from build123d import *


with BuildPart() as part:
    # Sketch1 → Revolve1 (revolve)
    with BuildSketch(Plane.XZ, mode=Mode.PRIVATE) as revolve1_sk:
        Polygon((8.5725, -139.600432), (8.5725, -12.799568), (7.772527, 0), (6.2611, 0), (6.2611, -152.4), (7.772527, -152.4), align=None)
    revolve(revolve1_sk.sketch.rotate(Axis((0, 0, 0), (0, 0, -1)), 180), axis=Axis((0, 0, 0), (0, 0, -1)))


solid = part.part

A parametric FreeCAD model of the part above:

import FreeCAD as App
import Part
import Sketcher
from FreeCAD import Vector
Q = App.Units.Quantity

doc = App.newDocument("Part")
body = doc.addObject("PartDesign::Body", "Body")

# Sketch on XZ plane
sketch1 = body.newObject("Sketcher::SketchObject", "Sketch")
sketch1.AttachmentSupport = (doc.getObject("XZ_Plane"), [""])
sketch1.MapMode = "FlatFace"
sketch1.addGeometry([
    Part.LineSegment(Vector(8.6, -139.6, 0), Vector(8.6, -12.8, 0)),  # 0
    Part.LineSegment(Vector(8.6, -12.8, 0), Vector(7.8, 0, 0)),  # 1
    Part.LineSegment(Vector(7.8, 0, 0), Vector(6.3, 0, 0)),  # 2
    Part.LineSegment(Vector(6.3, 0, 0), Vector(6.3, -152.4, 0)),  # 3
    Part.LineSegment(Vector(6.3, -152.4, 0), Vector(7.8, -152.4, 0)),  # 4
    Part.LineSegment(Vector(7.8, -152.4, 0), Vector(8.6, -139.6, 0)),  # 5
], False)
sketch1.addConstraint([
    Sketcher.Constraint("Coincident", 0, 2, 1, 1),
    Sketcher.Constraint("Coincident", 1, 2, 2, 1),
    Sketcher.Constraint("Coincident", 2, 2, 3, 1),
    Sketcher.Constraint("Coincident", 3, 2, 4, 1),
    Sketcher.Constraint("Coincident", 4, 2, 5, 1),
    Sketcher.Constraint("Coincident", 5, 2, 0, 1),
    Sketcher.Constraint("Vertical", 0),
    Sketcher.Constraint("Horizontal", 2),
    Sketcher.Constraint("Vertical", 3),
    Sketcher.Constraint("Horizontal", 4),
    Sketcher.Constraint("PointOnObject", 1, 2, -1),
    Sketcher.Constraint("Vertical", 1, 2, 4, 2),
    Sketcher.Constraint("Equal", 1, 5),
    Sketcher.Constraint("DistanceY", 3, 2, 3, 1, Q("6 in")),
    Sketcher.Constraint("DistanceX", 2, 2, 0, 2, Q("0.091 in")),
    Sketcher.Constraint("DistanceX", -1, 1, 0, 2, Q("0.3375 in")),
    Sketcher.Constraint("DistanceX", 2, 2, 2, 1, 1.511427),
    Sketcher.Constraint("DistanceY", 0, 1, 0, 2, 126.800864),
])
revolution = body.newObject("PartDesign::Revolution", "Revolution")
revolution.Profile = sketch1
revolution.ReferenceAxis = (sketch1, ["V_Axis"])
revolution.Angle = 360

doc.recompute()
